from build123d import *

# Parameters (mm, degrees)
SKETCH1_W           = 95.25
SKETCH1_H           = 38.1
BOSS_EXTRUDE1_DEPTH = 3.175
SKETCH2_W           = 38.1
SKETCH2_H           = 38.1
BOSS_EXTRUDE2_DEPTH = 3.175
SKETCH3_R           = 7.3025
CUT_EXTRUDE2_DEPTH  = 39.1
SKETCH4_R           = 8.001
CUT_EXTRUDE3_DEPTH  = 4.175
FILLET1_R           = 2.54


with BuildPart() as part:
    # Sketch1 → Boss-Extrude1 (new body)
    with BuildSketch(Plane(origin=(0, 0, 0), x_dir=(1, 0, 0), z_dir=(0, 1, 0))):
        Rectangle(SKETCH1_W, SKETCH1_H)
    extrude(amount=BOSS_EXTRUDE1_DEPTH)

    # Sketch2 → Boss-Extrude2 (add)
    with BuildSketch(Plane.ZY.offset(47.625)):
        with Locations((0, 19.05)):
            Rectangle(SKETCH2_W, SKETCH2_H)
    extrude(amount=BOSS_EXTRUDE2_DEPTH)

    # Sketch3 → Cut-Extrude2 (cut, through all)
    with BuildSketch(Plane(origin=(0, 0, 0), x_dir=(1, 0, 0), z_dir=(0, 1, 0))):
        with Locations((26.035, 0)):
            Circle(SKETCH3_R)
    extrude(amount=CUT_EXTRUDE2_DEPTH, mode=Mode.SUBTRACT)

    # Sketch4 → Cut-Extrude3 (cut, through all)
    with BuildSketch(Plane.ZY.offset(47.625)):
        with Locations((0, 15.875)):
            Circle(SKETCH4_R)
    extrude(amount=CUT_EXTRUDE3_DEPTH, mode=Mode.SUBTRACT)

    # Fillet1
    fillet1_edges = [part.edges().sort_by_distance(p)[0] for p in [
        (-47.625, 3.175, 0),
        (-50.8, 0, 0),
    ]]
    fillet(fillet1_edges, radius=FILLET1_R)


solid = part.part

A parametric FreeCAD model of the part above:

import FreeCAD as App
import Part
import Sketcher

V = App.Vector
Q = App.Units.Quantity


def edges_at(feature, points):
    """Names of the edges that pass closest to the given points."""
    edges = feature.Shape.Edges
    near = lambda p: min(range(len(edges)), key=lambda i: edges[i].distToShape(Part.Vertex(*p))[0])
    return sorted({f"Edge{near(p) + 1}" for p in points})


def add_polygon(sketch, points):
    """Adds a closed chain of lines whose ends are joined by coincident constraints."""
    first, n = sketch.GeometryCount, len(points)
    for a, b in zip(points, points[1:] + points[:1]):
        sketch.addGeometry(Part.LineSegment(App.Vector(*a, 0), App.Vector(*b, 0)), False)
    for i in range(n):
        sketch.addConstraint(Sketcher.Constraint("Coincident", first + i, 2, first + (i + 1) % n, 1))

doc = App.newDocument("Part")
body = doc.addObject("PartDesign::Body", "Body")

# Sketch on XZ plane
sketch1 = doc.addObject("Sketcher::SketchObject", "Sketch")
body.addObject(sketch1)
sketch1.AttachmentSupport = (doc.XZ_Plane, [""])
sketch1.MapMode = "FlatFace"
add_polygon(sketch1, [(-47.625, -19.05), (-47.625, 19.05), (47.625, 19.05), (47.625, -19.05)])  # lines 0-3
sketch1.addConstraint([
    Sketcher.Constraint("Vertical", 0),
    Sketcher.Constraint("Horizontal", 1),
    Sketcher.Constraint("Vertical", 2),
    Sketcher.Constraint("Horizontal", 3),
    Sketcher.Constraint("Symmetric", 0, 2, 2, 2, -1, 1),
    Sketcher.Constraint("DistanceY", 0, 1, 0, 2, Q("1.5 in")),
    Sketcher.Constraint("DistanceX", 1, 1, 1, 2, Q("3.75 in")),
])
pad1 = doc.addObject("PartDesign::Pad", "Pad")
body.addObject(pad1)
pad1.Profile = sketch1
pad1.Length = Q("0.125 in")
pad1.Reversed = True

# Sketch on YZ plane
sketch2 = doc.addObject("Sketcher::SketchObject", "Sketch001")
body.addObject(sketch2)
sketch2.AttachmentSupport = (doc.YZ_Plane, [""])
sketch2.MapMode = "FlatFace"
sketch2.AttachmentOffset = App.Placement(V(0, 0, -1.875 * 25.4), App.Rotation())
add_polygon(sketch2, [(38.1, -19.05), (0, -19.05), (0, 19.05), (38.1, 19.05)])  # lines 0-3
sketch2.addConstraint([
    Sketcher.Constraint("Horizontal", 0),
    Sketcher.Constraint("Vertical", 1),
    Sketcher.Constraint("Horizontal", 2),
    Sketcher.Constraint("Vertical", 3),
    Sketcher.Constraint("Symmetric", 0, 2, 1, 2, -1, 1),
    Sketcher.Constraint("Equal", 2, 1),
    Sketcher.Constraint("DistanceX", 0, 2, 0, 1, Q("1.5 in")),
])
pad2 = doc.addObject("PartDesign::Pad", "Pad001")
body.addObject(pad2)
pad2.Profile = sketch2
pad2.Length = Q("0.125 in")
pad2.Reversed = True

# Sketch on XZ plane
sketch3 = doc.addObject("Sketcher::SketchObject", "Sketch002")
body.addObject(sketch3)
sketch3.AttachmentSupport = (doc.XZ_Plane, [""])
sketch3.MapMode = "FlatFace"
sketch3.addGeometry(Part.Circle(V(26.035, 0, 0), V(0, 0, 1), 7.3025), False)
sketch3.addConstraint([
    Sketcher.Constraint("PointOnObject", 0, 3, -1),
    Sketcher.Constraint("Diameter", 0, Q("0.575 in")),
    Sketcher.Constraint("DistanceX", -1, 1, 0, 3, Q("1.025 in")),
])
pocket1 = doc.addObject("PartDesign::Pocket", "Pocket")
body.addObject(pocket1)
pocket1.Profile = sketch3
pocket1.Type = "ThroughAll"

# Sketch on YZ plane
sketch4 = doc.addObject("Sketcher::SketchObject", "Sketch003")
body.addObject(sketch4)
sketch4.AttachmentSupport = (doc.YZ_Plane, [""])
sketch4.MapMode = "FlatFace"
sketch4.AttachmentOffset = App.Placement(V(0, 0, -1.875 * 25.4), App.Rotation())
sketch4.addGeometry(Part.Circle(V(15.875, 0, 0), V(0, 0, 1), 8.001), False)
sketch4.addConstraint([
    Sketcher.Constraint("PointOnObject", 0, 3, -1),
    Sketcher.Constraint("Diameter", 0, Q("0.63 in")),
    Sketcher.Constraint("DistanceX", -1, 1, 0, 3, Q("0.625 in")),
])
pocket2 = doc.addObject("PartDesign::Pocket", "Pocket001")
body.addObject(pocket2)
pocket2.Profile = sketch4
pocket2.Type = "ThroughAll"
doc.recompute()

fillet = doc.addObject("PartDesign::Fillet", "Fillet")
body.addObject(fillet)
fillet.Base = (pocket2, edges_at(pocket2, [(-47.625, 3.175, 0), (-50.8, 0, 0)]))
fillet.Radius = Q("0.1 in")

doc.recompute()
